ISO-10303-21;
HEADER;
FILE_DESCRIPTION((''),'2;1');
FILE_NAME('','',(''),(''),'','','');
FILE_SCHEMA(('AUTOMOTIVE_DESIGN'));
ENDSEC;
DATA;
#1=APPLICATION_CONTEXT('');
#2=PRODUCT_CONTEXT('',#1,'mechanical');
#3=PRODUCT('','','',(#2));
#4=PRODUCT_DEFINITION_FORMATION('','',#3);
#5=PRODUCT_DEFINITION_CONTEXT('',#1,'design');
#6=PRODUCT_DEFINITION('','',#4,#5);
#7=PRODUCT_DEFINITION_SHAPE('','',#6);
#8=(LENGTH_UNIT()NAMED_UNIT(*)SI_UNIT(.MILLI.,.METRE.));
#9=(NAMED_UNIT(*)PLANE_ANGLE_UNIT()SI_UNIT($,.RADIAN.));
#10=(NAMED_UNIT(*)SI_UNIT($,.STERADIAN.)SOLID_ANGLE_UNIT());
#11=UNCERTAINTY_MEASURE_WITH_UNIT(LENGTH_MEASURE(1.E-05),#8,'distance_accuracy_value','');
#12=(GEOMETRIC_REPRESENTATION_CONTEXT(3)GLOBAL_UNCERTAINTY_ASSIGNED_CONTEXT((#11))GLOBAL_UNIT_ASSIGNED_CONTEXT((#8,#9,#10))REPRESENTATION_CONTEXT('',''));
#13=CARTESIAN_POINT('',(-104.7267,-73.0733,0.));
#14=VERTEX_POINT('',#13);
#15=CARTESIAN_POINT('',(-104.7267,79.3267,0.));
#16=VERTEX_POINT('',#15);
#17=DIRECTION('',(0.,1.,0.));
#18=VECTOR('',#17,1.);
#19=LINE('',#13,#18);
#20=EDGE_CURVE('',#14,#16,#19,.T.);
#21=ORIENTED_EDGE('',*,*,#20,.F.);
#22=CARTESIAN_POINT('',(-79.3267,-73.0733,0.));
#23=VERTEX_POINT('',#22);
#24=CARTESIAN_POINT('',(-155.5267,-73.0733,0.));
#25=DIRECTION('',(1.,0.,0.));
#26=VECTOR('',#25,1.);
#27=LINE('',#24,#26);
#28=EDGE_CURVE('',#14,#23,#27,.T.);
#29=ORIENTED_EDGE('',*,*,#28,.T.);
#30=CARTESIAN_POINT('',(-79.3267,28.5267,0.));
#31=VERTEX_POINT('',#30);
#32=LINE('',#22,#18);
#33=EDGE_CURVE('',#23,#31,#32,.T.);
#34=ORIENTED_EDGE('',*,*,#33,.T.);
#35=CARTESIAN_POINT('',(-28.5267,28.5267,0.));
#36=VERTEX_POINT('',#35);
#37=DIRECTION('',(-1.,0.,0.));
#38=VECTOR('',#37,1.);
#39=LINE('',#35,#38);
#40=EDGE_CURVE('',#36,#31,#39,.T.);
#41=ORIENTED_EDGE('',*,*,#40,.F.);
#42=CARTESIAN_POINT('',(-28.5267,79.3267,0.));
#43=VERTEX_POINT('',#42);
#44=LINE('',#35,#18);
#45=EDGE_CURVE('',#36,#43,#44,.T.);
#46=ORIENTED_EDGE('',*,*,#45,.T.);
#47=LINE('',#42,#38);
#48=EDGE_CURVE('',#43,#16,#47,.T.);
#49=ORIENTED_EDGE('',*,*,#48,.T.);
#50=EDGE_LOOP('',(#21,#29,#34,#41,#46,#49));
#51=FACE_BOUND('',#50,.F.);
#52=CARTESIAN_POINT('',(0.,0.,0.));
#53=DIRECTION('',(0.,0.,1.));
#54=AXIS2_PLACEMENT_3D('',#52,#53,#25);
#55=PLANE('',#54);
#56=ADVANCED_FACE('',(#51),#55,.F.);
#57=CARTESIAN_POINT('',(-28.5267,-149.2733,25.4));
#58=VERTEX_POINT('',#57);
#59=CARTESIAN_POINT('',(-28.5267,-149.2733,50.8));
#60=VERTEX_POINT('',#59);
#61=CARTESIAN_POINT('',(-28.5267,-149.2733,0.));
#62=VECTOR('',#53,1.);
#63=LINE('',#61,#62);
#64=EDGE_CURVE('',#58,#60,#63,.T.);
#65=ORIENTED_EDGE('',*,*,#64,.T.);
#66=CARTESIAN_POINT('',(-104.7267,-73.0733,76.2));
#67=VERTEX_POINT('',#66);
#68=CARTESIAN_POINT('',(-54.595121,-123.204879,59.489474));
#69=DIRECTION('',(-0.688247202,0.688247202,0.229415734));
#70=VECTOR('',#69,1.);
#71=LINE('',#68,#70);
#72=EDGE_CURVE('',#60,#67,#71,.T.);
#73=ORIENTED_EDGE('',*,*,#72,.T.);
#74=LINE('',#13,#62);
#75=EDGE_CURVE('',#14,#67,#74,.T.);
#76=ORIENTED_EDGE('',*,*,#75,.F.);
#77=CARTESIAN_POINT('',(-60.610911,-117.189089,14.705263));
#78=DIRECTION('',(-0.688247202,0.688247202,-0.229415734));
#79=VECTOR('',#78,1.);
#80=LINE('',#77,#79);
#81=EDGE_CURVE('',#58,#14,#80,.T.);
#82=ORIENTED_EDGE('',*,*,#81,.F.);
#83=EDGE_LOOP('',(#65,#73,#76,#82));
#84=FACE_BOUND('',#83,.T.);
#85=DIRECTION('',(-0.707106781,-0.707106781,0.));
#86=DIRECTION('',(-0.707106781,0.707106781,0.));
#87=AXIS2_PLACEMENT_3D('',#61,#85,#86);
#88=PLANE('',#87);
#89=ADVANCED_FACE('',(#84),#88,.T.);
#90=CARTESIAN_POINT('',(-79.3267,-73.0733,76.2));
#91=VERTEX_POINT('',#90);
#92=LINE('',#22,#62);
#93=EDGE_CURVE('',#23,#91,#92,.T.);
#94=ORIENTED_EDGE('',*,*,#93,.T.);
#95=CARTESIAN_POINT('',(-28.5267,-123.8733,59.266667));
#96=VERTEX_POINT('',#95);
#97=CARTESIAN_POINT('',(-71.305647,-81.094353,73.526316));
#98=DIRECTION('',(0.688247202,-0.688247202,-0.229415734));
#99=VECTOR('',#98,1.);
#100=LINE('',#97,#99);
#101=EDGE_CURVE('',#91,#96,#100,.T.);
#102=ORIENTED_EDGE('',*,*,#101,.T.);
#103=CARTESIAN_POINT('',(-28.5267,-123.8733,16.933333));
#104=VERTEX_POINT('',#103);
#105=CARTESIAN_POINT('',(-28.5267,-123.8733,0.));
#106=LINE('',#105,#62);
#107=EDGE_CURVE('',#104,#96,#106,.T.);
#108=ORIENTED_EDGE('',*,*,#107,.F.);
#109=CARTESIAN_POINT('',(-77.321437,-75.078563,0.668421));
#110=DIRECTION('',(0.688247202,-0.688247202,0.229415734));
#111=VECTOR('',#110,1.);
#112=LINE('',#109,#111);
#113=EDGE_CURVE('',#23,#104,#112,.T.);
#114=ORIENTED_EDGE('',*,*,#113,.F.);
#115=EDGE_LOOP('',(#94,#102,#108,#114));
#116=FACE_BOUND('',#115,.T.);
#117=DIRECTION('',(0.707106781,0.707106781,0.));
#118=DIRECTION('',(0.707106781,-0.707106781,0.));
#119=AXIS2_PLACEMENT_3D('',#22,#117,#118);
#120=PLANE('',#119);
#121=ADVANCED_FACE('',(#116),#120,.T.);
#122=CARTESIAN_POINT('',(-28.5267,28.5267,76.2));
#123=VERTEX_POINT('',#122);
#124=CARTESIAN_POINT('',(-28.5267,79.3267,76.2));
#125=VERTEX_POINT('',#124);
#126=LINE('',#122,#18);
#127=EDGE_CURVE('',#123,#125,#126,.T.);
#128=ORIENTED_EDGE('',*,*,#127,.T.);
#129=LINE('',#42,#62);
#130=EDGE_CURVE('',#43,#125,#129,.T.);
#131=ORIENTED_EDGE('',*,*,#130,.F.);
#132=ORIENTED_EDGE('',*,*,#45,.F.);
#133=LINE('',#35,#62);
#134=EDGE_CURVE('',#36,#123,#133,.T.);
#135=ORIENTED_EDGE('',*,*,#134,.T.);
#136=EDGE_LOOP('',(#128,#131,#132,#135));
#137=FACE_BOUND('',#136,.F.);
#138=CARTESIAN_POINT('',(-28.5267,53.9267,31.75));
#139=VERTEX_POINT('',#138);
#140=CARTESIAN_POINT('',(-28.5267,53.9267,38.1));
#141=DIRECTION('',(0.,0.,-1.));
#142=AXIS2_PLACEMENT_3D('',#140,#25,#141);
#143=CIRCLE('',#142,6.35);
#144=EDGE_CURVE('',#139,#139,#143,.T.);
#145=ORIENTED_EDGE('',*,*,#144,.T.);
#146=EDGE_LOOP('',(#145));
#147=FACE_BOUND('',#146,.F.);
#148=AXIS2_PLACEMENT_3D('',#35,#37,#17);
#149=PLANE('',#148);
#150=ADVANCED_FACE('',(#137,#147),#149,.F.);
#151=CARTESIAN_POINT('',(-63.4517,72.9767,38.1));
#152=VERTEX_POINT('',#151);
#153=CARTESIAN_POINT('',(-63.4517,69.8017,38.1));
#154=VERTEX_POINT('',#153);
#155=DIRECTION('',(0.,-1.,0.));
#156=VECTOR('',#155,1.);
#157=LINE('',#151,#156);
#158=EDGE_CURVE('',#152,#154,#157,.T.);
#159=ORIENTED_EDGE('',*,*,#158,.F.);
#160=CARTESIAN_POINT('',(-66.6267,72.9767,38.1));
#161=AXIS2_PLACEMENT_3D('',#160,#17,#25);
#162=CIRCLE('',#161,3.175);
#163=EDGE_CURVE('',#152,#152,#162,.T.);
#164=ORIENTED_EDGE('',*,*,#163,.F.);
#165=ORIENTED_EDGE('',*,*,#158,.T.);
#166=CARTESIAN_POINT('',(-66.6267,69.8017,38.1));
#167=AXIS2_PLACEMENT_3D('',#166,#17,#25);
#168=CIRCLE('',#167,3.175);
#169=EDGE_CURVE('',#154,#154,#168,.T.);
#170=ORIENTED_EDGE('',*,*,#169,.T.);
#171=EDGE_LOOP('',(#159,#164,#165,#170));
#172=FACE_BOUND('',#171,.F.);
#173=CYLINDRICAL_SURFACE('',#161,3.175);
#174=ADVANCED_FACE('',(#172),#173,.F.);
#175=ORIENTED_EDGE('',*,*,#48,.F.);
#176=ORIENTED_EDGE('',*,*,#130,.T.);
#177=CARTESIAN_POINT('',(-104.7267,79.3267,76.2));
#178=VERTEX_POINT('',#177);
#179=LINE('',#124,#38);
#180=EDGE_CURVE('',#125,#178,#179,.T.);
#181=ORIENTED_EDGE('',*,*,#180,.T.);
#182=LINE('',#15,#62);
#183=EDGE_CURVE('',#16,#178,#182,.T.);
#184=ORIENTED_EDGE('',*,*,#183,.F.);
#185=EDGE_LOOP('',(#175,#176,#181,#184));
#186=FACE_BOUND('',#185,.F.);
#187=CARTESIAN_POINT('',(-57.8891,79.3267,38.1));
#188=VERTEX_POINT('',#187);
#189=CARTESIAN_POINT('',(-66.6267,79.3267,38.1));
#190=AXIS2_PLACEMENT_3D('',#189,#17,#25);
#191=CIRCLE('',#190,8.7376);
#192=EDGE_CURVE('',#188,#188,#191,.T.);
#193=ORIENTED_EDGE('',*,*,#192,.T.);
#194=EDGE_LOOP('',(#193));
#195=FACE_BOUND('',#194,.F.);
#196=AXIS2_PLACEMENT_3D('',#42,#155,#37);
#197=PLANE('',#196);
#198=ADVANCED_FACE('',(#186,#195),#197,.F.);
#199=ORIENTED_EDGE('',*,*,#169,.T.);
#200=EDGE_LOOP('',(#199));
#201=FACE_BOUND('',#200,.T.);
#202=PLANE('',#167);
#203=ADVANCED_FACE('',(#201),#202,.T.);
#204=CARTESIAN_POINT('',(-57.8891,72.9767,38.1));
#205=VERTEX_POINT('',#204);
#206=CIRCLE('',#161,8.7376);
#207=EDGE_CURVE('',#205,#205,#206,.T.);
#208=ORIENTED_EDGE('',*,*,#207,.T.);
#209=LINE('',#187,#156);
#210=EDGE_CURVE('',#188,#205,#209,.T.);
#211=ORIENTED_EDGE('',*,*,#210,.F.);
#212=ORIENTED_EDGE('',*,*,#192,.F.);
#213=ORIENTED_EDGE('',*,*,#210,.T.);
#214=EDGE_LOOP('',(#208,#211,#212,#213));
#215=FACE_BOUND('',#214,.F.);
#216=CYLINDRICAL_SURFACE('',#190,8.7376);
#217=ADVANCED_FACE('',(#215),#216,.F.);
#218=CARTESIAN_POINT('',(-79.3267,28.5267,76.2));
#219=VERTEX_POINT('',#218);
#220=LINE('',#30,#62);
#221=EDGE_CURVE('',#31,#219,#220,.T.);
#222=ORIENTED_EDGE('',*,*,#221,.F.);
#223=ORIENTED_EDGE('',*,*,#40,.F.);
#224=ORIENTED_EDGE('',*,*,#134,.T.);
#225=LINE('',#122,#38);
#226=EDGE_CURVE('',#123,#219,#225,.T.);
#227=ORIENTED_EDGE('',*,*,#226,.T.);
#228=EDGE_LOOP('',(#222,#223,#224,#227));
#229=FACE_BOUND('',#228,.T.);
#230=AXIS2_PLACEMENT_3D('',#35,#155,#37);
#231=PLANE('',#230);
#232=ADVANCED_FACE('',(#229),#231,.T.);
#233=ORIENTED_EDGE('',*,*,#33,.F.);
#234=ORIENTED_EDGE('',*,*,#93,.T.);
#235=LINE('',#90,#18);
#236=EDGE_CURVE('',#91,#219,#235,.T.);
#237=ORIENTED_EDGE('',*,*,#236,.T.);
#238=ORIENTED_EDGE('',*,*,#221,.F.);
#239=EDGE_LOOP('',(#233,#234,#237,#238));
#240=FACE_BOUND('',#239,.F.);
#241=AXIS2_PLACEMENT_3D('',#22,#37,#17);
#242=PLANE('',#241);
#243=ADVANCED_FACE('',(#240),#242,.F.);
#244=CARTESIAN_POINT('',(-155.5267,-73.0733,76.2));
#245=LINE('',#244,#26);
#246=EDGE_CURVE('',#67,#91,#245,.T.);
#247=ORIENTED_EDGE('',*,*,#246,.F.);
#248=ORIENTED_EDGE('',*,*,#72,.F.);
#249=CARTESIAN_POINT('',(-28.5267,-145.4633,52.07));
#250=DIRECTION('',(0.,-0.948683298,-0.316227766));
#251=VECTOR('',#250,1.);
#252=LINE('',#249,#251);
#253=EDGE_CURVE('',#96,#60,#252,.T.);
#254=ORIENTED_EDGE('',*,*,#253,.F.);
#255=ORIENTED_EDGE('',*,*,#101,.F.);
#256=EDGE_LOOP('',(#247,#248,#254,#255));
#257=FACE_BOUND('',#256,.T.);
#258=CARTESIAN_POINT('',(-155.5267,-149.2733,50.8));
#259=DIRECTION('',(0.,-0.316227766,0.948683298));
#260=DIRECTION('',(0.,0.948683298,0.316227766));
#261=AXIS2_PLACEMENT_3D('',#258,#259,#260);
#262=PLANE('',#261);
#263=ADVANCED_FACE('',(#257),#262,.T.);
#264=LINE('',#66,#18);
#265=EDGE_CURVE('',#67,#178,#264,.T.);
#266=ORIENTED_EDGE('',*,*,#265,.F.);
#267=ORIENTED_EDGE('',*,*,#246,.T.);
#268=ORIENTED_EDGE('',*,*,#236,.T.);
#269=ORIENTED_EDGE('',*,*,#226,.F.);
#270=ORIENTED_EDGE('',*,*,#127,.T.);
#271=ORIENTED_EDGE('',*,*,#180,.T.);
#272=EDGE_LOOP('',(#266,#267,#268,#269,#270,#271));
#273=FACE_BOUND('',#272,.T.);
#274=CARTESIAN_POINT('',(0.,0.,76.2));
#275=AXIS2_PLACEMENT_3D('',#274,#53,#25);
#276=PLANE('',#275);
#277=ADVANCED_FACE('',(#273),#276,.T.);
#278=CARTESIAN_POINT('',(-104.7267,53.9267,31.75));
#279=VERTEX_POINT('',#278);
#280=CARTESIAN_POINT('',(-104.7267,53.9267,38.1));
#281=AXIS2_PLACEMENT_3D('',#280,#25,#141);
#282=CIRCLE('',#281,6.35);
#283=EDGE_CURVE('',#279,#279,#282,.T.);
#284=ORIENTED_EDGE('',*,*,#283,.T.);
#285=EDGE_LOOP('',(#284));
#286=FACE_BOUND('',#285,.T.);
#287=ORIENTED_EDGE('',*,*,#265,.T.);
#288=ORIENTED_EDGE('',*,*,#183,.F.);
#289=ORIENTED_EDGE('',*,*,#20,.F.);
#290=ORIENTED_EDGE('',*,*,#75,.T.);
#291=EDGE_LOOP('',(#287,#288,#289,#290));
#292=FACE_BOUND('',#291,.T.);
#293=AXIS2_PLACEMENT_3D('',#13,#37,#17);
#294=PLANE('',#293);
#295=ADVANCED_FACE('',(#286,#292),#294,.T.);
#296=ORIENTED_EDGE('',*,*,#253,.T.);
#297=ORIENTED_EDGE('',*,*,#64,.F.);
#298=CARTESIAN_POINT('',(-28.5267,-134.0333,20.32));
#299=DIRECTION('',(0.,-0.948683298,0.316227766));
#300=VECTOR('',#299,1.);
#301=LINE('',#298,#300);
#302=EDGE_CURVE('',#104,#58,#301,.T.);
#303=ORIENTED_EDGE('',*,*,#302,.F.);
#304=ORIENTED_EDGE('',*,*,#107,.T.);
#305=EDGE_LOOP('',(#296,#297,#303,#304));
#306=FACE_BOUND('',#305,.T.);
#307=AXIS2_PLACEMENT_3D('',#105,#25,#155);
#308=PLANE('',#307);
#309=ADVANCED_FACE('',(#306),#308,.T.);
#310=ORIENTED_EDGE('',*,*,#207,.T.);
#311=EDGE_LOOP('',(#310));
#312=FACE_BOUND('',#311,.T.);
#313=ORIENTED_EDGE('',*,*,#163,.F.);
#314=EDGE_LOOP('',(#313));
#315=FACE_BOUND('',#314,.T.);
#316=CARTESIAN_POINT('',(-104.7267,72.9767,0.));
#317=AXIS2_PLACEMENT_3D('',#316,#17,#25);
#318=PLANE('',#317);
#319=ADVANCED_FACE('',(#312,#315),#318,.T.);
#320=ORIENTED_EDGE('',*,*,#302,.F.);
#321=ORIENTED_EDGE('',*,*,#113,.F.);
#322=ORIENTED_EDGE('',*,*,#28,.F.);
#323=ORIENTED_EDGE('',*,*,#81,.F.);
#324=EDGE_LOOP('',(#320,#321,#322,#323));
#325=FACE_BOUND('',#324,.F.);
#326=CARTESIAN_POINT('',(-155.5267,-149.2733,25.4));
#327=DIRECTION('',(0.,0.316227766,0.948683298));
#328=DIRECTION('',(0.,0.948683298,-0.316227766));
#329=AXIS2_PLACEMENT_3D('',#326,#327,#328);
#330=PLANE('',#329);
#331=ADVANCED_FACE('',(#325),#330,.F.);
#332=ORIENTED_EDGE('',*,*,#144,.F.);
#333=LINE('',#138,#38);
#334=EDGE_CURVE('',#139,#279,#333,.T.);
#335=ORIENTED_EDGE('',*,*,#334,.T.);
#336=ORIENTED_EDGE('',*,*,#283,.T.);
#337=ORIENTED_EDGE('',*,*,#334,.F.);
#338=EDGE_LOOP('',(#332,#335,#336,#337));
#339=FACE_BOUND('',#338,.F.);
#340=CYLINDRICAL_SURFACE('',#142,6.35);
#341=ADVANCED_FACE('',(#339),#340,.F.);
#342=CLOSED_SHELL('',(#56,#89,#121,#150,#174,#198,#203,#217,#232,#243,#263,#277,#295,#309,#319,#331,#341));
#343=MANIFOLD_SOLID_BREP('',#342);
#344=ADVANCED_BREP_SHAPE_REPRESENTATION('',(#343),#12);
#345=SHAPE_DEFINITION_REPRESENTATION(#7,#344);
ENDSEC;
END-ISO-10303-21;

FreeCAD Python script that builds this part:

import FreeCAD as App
import Part
import Sketcher
from FreeCAD import Vector
Q = App.Units.Quantity

doc = App.newDocument("Part")
body = doc.addObject("PartDesign::Body", "Body")

sketch1 = doc.addObject("Sketcher::SketchObject", "Sketch")
body.addObject(sketch1)
sketch1.AttachmentSupport = (doc.XY_Plane, [""])
sketch1.MapMode = "FlatFace"
sketch1.addGeometry([
    Part.LineSegment(Vector(-79, 29, 0), Vector(-29, 29, 0)),
    Part.LineSegment(Vector(-29, 29, 0), Vector(-29, 79, 0)),
    Part.LineSegment(Vector(-29, 79, 0), Vector(-105, 79, 0)),
    Part.LineSegment(Vector(-105, 79, 0), Vector(-105, -73, 0)),
    Part.LineSegment(Vector(-105, -73, 0), Vector(-29, -149, 0)),
    Part.LineSegment(Vector(-29, -149, 0), Vector(-29, -124, 0)),
    Part.LineSegment(Vector(-29, -124, 0), Vector(-79, -73, 0)),
    Part.LineSegment(Vector(-79, -73, 0), Vector(-79, 29, 0)),
], False)
sketch1.addConstraint([
    Sketcher.Constraint("Coincident", 0, 2, 1, 1),
    Sketcher.Constraint("Coincident", 1, 2, 2, 1),
    Sketcher.Constraint("Coincident", 2, 2, 3, 1),
    Sketcher.Constraint("Coincident", 3, 2, 4, 1),
    Sketcher.Constraint("Coincident", 4, 2, 5, 1),
    Sketcher.Constraint("Coincident", 5, 2, 6, 1),
    Sketcher.Constraint("Coincident", 6, 2, 7, 1),
    Sketcher.Constraint("Coincident", 7, 2, 0, 1),
    Sketcher.Constraint("Horizontal", 0),
    Sketcher.Constraint("Vertical", 1),
    Sketcher.Constraint("Horizontal", 2),
    Sketcher.Constraint("Vertical", 3),
    Sketcher.Constraint("Vertical", 5),
    Sketcher.Constraint("Vertical", 7),
    Sketcher.Constraint("Parallel", 4, 6),
    Sketcher.Constraint("Horizontal", 3, 2, 6, 2),
    Sketcher.Constraint("Vertical", 1, 2, 4, 2),
    Sketcher.Constraint("Equal", 0, 1),
    Sketcher.Constraint("DistanceX", 0, 1, 0, 2, Q("2 in")),
    Sketcher.Constraint("DistanceY", 3, 2, 3, 1, Q("6 in")),
    Sketcher.Constraint("DistanceY", 5, 1, 5, 2, Q("1 in")),
    Sketcher.Constraint("Angle", 6, Q("135 deg")),
    Sketcher.Constraint("DistanceX", 0, 2, -1, 1, Q("1.1231 in")),
    Sketcher.Constraint("DistanceY", -1, 1, 0, 2, Q("1.1231 in")),
])
pad1 = doc.addObject("PartDesign::Pad", "Pad")
body.addObject(pad1)
pad1.Profile = sketch1
pad1.Length = Q("3 in")

sketch2 = doc.addObject("Sketcher::SketchObject", "Sketch001")
body.addObject(sketch2)
sketch2.AttachmentSupport = (doc.YZ_Plane, [""])
sketch2.MapMode = "FlatFace"
sketch2.AttachmentOffset = App.Placement(Vector(0, 0, -6.1230984 * 25.4), App.Rotation())
sketch2.addGeometry([
    Part.LineSegment(Vector(-73, 0, 0), Vector(-149, 0, 0)),
    Part.LineSegment(Vector(-149, 0, 0), Vector(-149, 25, 0)),
    Part.LineSegment(Vector(-149, 25, 0), Vector(-73, 0, 0)),
    Part.LineSegment(Vector(-73, 76, 0), Vector(-149, 51, 0)),
    Part.LineSegment(Vector(-149, 51, 0), Vector(-149, 76, 0)),
    Part.LineSegment(Vector(-149, 76, 0), Vector(-73, 76, 0)),
], False)
sketch2.addConstraint([
    Sketcher.Constraint("Coincident", 0, 2, 1, 1),
    Sketcher.Constraint("Coincident", 1, 2, 2, 1),
    Sketcher.Constraint("Coincident", 2, 2, 0, 1),
    Sketcher.Constraint("Coincident", 3, 2, 4, 1),
    Sketcher.Constraint("Coincident", 4, 2, 5, 1),
    Sketcher.Constraint("Coincident", 5, 2, 3, 1),
    Sketcher.Constraint("Horizontal", 0),
    Sketcher.Constraint("Vertical", 1),
    Sketcher.Constraint("Vertical", 4),
    Sketcher.Constraint("Horizontal", 5),
    Sketcher.Constraint("PointOnObject", 0, 2, -1),
    Sketcher.Constraint("Vertical", 1, 2, 3, 2),
    Sketcher.Constraint("Vertical", 2, 2, 5, 2),
    Sketcher.Constraint("Equal", 1, 4),
    Sketcher.Constraint("DistanceY", 1, 1, 1, 2, Q("1 in")),
    Sketcher.Constraint("DistanceY", 1, 2, 3, 2, Q("1 in")),
    Sketcher.Constraint("DistanceX", 0, 2, 0, 1, Q("3 in")),
    Sketcher.Constraint("DistanceX", 0, 2, -1, 1, Q("5.8769 in")),
])
pocket1 = doc.addObject("PartDesign::Pocket", "Pocket")
body.addObject(pocket1)
pocket1.Profile = sketch2
pocket1.Length = Q("7 in")
pocket1.Reversed = True

sketch3 = doc.addObject("Sketcher::SketchObject", "Sketch002")
body.addObject(sketch3)
sketch3.AttachmentSupport = (doc.XZ_Plane, [""])
sketch3.MapMode = "FlatFace"
sketch3.AttachmentOffset = App.Placement(Vector(0, 0, -3.1230984 * 25.4), App.Rotation())
sketch3.addGeometry(Part.Circle(Vector(-67, 38, 0), Vector(0, 0, 1), 9), False)
sketch3.addConstraint([
    Sketcher.Constraint("Diameter", 0, Q("0.688 in")),
    Sketcher.Constraint("DistanceY", -1, 1, 0, 3, Q("1.5 in")),
    Sketcher.Constraint("DistanceX", 0, 3, -1, 1, Q("2.6231 in")),
])
pocket2 = doc.addObject("PartDesign::Pocket", "Pocket001")
body.addObject(pocket2)
pocket2.Profile = sketch3
pocket2.Length = Q("0.25 in")
pocket2.Reversed = True

sketch4 = doc.addObject("Sketcher::SketchObject", "Sketch003")
body.addObject(sketch4)
sketch4.AttachmentSupport = (doc.YZ_Plane, [""])
sketch4.MapMode = "FlatFace"
sketch4.AttachmentOffset = App.Placement(Vector(0, 0, -1.1230984 * 25.4), App.Rotation())
sketch4.addGeometry(Part.Circle(Vector(54, 38, 0), Vector(0, 0, 1), 6), False)
sketch4.addConstraint([
    Sketcher.Constraint("Diameter", 0, Q("0.5 in")),
    Sketcher.Constraint("DistanceY", -1, 1, 0, 3, Q("1.5 in")),
    Sketcher.Constraint("DistanceX", -1, 1, 0, 3, Q("2.1231 in")),
])
pocket3 = doc.addObject("PartDesign::Pocket", "Pocket002")
body.addObject(pocket3)
pocket3.Profile = sketch4
pocket3.Length = Q("6.0625 in")

sketch5 = doc.addObject("Sketcher::SketchObject", "Sketch004")
body.addObject(sketch5)
sketch5.AttachmentSupport = (doc.XZ_Plane, [""])
sketch5.MapMode = "FlatFace"
sketch5.AttachmentOffset = App.Placement(Vector(0, 0, -2.8730984 * 25.4), App.Rotation())
sketch5.addGeometry(Part.Circle(Vector(-66.6, 38.1, 0), Vector(0, 0, 1), 3.2), False)
sketch5.addConstraint([
    Sketcher.Constraint("Diameter", 0, Q("0.25 in")),
    Sketcher.Constraint("DistanceY", -1, 1, 0, 3, Q("1.5 in")),
    Sketcher.Constraint("DistanceX", 0, 3, -1, 1, Q("2.6231 in")),
])
pocket4 = doc.addObject("PartDesign::Pocket", "Pocket003")
body.addObject(pocket4)
pocket4.Profile = sketch5
pocket4.Length = Q("0.125 in")
pocket4.Reversed = True

doc.recompute()
